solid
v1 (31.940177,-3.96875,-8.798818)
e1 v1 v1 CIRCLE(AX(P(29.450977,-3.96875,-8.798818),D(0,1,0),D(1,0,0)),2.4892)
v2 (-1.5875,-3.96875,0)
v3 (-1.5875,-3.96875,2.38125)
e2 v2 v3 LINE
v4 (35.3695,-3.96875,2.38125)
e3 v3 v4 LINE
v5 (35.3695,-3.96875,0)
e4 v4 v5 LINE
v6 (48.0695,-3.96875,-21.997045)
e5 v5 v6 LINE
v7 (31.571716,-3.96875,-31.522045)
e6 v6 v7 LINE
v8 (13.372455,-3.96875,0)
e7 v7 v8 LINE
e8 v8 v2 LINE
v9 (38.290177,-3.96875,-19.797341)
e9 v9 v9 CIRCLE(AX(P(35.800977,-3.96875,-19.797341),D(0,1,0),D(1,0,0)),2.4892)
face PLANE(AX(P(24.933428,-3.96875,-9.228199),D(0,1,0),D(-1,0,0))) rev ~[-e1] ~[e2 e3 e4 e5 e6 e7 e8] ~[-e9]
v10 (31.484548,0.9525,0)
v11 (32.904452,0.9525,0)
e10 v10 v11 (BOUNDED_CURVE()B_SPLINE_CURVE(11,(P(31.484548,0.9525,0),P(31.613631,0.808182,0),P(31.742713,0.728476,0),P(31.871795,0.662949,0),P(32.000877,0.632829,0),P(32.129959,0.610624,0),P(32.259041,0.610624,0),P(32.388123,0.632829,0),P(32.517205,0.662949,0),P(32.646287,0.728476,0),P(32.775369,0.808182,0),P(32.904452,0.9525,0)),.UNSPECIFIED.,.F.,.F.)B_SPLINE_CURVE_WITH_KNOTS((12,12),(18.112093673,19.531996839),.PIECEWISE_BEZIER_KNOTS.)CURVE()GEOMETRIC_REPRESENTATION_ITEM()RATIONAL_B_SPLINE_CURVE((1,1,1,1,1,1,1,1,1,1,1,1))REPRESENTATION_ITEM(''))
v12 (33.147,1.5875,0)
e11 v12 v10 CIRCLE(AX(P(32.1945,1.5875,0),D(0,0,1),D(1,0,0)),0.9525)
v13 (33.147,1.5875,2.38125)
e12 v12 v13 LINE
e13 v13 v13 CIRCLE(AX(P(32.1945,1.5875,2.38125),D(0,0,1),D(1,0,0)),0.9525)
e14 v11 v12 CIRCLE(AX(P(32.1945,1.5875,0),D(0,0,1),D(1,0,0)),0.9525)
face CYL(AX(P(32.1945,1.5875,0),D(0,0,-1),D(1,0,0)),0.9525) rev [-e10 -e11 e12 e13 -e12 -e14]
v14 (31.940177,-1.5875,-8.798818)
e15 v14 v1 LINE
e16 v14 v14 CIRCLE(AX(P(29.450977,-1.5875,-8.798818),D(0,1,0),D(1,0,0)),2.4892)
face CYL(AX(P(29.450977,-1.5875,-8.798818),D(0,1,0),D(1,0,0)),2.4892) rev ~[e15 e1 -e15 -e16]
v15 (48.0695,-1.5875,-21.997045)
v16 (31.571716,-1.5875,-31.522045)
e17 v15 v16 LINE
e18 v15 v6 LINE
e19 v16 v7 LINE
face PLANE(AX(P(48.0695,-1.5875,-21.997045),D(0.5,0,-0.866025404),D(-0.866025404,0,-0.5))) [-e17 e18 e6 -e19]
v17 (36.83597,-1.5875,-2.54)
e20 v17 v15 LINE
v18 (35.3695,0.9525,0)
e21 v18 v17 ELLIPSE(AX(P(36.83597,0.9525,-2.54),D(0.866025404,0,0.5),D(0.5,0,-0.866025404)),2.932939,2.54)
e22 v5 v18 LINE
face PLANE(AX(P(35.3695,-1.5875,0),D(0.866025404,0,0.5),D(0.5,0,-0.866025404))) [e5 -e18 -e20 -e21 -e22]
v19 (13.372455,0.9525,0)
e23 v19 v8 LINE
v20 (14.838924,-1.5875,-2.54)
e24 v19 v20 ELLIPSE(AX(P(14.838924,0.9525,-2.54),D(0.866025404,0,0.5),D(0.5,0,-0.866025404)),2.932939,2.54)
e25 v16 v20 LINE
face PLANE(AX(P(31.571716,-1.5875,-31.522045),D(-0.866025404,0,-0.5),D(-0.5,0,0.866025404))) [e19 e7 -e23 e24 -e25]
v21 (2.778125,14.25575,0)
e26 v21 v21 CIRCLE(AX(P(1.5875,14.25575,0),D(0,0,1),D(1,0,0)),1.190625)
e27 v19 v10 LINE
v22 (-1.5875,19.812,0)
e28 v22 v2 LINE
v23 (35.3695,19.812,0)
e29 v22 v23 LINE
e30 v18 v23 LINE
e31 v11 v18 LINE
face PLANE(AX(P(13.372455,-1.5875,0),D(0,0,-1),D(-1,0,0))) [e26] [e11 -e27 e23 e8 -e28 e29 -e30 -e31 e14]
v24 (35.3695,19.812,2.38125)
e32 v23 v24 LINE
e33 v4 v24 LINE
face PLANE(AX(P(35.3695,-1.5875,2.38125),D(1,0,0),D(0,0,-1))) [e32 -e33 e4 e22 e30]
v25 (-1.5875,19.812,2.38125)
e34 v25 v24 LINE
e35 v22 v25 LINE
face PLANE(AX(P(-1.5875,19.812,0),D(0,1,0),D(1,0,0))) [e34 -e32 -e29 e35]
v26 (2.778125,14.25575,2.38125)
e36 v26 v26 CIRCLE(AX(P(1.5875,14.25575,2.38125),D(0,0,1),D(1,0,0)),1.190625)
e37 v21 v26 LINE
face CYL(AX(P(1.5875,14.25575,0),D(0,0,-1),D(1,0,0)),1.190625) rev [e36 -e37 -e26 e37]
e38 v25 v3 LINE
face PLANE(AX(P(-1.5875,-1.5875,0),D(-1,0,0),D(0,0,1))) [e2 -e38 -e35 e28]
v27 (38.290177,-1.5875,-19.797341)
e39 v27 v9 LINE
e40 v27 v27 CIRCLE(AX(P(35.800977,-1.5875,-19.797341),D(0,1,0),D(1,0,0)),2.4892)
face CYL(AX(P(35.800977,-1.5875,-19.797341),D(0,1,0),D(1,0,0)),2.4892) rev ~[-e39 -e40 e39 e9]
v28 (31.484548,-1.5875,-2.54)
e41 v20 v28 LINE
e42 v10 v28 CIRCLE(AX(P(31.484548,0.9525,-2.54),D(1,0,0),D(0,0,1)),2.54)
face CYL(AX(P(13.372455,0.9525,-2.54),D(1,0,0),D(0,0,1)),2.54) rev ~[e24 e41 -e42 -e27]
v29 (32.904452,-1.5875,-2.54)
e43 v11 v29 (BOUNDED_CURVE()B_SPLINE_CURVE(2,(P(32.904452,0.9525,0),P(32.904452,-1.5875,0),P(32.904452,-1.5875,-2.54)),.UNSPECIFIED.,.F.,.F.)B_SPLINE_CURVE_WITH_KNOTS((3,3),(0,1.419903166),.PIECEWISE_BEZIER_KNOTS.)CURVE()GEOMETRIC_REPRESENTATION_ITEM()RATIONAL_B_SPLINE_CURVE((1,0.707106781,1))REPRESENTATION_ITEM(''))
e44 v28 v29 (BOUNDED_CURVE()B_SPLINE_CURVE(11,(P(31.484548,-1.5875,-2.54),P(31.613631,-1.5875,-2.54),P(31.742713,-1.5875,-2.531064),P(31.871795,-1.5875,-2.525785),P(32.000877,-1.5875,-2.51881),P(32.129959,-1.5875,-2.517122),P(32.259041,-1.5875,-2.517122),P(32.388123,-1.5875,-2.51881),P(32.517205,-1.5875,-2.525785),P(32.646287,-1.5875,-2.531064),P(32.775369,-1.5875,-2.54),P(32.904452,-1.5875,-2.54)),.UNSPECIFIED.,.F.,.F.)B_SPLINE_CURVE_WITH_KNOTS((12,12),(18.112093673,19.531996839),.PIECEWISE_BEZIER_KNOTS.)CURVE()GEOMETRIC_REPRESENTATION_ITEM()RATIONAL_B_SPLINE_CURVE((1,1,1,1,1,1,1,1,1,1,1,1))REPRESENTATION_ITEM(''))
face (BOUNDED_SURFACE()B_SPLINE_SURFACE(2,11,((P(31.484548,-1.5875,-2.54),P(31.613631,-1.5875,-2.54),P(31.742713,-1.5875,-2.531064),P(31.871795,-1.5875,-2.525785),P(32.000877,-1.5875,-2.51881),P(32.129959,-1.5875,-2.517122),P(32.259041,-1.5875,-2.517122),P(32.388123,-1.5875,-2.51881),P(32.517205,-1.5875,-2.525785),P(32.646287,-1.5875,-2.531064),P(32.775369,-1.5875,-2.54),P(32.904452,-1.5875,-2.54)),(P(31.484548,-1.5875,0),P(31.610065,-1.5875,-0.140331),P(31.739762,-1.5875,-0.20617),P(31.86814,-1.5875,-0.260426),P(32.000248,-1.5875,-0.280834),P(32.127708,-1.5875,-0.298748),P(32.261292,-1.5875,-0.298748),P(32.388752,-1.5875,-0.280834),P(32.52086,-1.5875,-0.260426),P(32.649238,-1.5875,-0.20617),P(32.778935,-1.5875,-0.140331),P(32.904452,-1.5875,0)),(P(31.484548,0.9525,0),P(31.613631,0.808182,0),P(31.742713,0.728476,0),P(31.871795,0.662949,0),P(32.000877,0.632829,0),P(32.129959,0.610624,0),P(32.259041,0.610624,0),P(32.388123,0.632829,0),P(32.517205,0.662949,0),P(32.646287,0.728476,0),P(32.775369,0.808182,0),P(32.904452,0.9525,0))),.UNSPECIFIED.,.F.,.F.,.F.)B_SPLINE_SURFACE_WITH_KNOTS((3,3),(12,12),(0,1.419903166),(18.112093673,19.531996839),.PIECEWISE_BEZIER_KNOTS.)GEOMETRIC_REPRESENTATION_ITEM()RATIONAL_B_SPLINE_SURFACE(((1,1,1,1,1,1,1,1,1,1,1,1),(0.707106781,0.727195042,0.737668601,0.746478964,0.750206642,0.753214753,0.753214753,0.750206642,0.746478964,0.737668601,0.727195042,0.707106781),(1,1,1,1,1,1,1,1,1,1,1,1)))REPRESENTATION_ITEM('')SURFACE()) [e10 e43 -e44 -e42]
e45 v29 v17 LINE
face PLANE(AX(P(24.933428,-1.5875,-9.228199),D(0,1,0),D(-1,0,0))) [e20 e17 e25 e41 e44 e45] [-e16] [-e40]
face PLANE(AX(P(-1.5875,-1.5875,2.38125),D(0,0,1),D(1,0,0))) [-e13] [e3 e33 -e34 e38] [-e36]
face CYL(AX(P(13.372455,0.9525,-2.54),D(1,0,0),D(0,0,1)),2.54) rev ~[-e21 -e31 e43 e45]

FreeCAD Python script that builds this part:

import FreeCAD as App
import Part
import Sketcher

V = App.Vector
Q = App.Units.Quantity


def edges_at(feature, points):
    """Names of the edges that pass closest to the given points."""
    edges = feature.Shape.Edges
    near = lambda p: min(range(len(edges)), key=lambda i: edges[i].distToShape(Part.Vertex(*p))[0])
    return sorted({f"Edge{near(p) + 1}" for p in points})

doc = App.newDocument("Part")
body = doc.addObject("PartDesign::Body", "Body")

# Sketch on XY plane
sketch1 = doc.addObject("Sketcher::SketchObject", "Sketch")
body.addObject(sketch1)
sketch1.AttachmentSupport = (doc.XY_Plane, [""])
sketch1.MapMode = "FlatFace"
sketch1.addGeometry([
    Part.LineSegment(V(-1.6, 19.8, 0), V(-1.6, -1.6, 0)),  # 0
    Part.LineSegment(V(-1.6, -1.6, 0), V(35.4, -1.6, 0)),  # 1
    Part.LineSegment(V(35.4, -1.6, 0), V(35.4, 19.8, 0)),  # 2
    Part.LineSegment(V(35.4, 19.8, 0), V(-1.6, 19.8, 0)),  # 3
    Part.Circle(V(32.2, 1.6, 0), V(0, 0, 1), 1),  # 4
    Part.Circle(V(1.6, 14.3, 0), V(0, 0, 1), 1.2),  # 5
], False)
sketch1.addConstraint([
    Sketcher.Constraint("Coincident", 0, 2, 1, 1),
    Sketcher.Constraint("Coincident", 1, 2, 2, 1),
    Sketcher.Constraint("Coincident", 2, 2, 3, 1),
    Sketcher.Constraint("Coincident", 3, 2, 0, 1),
    Sketcher.Constraint("Vertical", 0),
    Sketcher.Constraint("Horizontal", 1),
    Sketcher.Constraint("Vertical", 2),
    Sketcher.Constraint("Horizontal", 3),
    Sketcher.Constraint("Diameter", 4, Q("0.075 in")),
    Sketcher.Constraint("Diameter", 5, Q("0.09375 in")),
    Sketcher.Constraint("DistanceX", 1, 1, 1, 2, Q("1.455 in")),
    Sketcher.Constraint("DistanceY", -1, 1, 2, 2, Q("0.78 in")),
    Sketcher.Constraint("DistanceX", 0, 2, 4, 3, Q("1.33 in")),
    Sketcher.Constraint("DistanceX", 5, 3, 1, 2, Q("1.33 in")),
    Sketcher.Constraint("DistanceY", 0, 2, 0, 1, Q("0.8425 in")),
    Sketcher.Constraint("DistanceY", -1, 1, 4, 3, Q("0.0625 in")),
    Sketcher.Constraint("DistanceX", -1, 1, 5, 3, Q("0.0625 in")),
    Sketcher.Constraint("DistanceY", 5, 3, 2, 2, Q("0.21875 in")),
])
pad1 = doc.addObject("PartDesign::Pad", "Pad")
body.addObject(pad1)
pad1.Profile = sketch1
pad1.Length = Q("0.09375 in")

# Sketch on XZ plane
sketch2 = doc.addObject("Sketcher::SketchObject", "Sketch001")
body.addObject(sketch2)
sketch2.AttachmentSupport = (doc.XZ_Plane, [""])
sketch2.MapMode = "FlatFace"
sketch2.AttachmentOffset = App.Placement(V(0, 0, 0.0625 * 25.4), App.Rotation())
sketch2.addGeometry([
    Part.LineSegment(V(35.4, 2.4, 0), V(-1.6, 2.4, 0)),  # 0
    Part.LineSegment(V(-1.6, 2.4, 0), V(-1.6, 0, 0)),  # 1
    Part.LineSegment(V(-1.6, 0, 0), V(13.4, 0, 0)),  # 2
    Part.LineSegment(V(13.4, 0, 0), V(31.6, -31.5, 0)),  # 3
    Part.LineSegment(V(31.6, -31.5, 0), V(48.1, -22, 0)),  # 4
    Part.LineSegment(V(48.1, -22, 0), V(35.4, 0, 0)),  # 5
    Part.LineSegment(V(35.4, 0, 0), V(35.4, 2.4, 0)),  # 6
], False)
sketch2.addConstraint([
    Sketcher.Constraint("Coincident", 0, 2, 1, 1),
    Sketcher.Constraint("Coincident", 1, 2, 2, 1),
    Sketcher.Constraint("Coincident", 2, 2, 3, 1),
    Sketcher.Constraint("Coincident", 3, 2, 4, 1),
    Sketcher.Constraint("Coincident", 4, 2, 5, 1),
    Sketcher.Constraint("Coincident", 5, 2, 6, 1),
    Sketcher.Constraint("Coincident", 6, 2, 0, 1),
    Sketcher.Constraint("Horizontal", 0),
    Sketcher.Constraint("Vertical", 1),
    Sketcher.Constraint("Horizontal", 2),
    Sketcher.Constraint("Vertical", 6),
    Sketcher.Constraint("PointOnObject", 1, 2, -1),
    Sketcher.Constraint("PointOnObject", 5, 2, -1),
    Sketcher.Constraint("Perpendicular", 3, 4),
    Sketcher.Constraint("Perpendicular", 4, 5),
    Sketcher.Constraint("Distance", 5, Q("1 in")),
    Sketcher.Constraint("Angle", 3, Q("-60 deg")),
    Sketcher.Constraint("Distance", 4, Q("0.75 in")),
    Sketcher.Constraint("DistanceX", 0, 2, 0, 1, Q("1.455 in")),
    Sketcher.Constraint("DistanceY", 1, 2, 1, 1, Q("0.09375 in")),
    Sketcher.Constraint("DistanceX", 0, 2, -1, 1, Q("0.0625 in")),
])
pad2 = doc.addObject("PartDesign::Pad", "Pad001")
body.addObject(pad2)
pad2.Profile = sketch2
pad2.Length = Q("0.09375 in")

# Sketch on XZ plane
sketch3 = doc.addObject("Sketcher::SketchObject", "Sketch002")
body.addObject(sketch3)
sketch3.AttachmentSupport = (doc.XZ_Plane, [""])
sketch3.MapMode = "FlatFace"
sketch3.AttachmentOffset = App.Placement(V(0, 0, 0.0625 * 25.4), App.Rotation())
sketch3.addGeometry(Part.Circle(V(35.8, -19.8, 0), V(0, 0, 1), 2.5), False)
sketch3.addConstraint([
    Sketcher.Constraint("Diameter", 0, Q("0.196 in")),
    Sketcher.Constraint("DistanceY", 0, 3, -1, 1, 19.797341),
    Sketcher.Constraint("DistanceX", -1, 1, 0, 3, 35.800977),
])
pocket1 = doc.addObject("PartDesign::Pocket", "Pocket")
body.addObject(pocket1)
pocket1.Profile = sketch3
pocket1.Type = "UpToFirst"
pocket1.Reversed = True

# Sketch on XZ plane
sketch4 = doc.addObject("Sketcher::SketchObject", "Sketch003")
body.addObject(sketch4)
sketch4.AttachmentSupport = (doc.XZ_Plane, [""])
sketch4.MapMode = "FlatFace"
sketch4.AttachmentOffset = App.Placement(V(0, 0, 0.0625 * 25.4), App.Rotation())
sketch4.addGeometry(Part.Circle(V(29.5, -8.8, 0), V(0, 0, 1), 2.5), False)
sketch4.addConstraint([
    Sketcher.Constraint("Diameter", 0, Q("0.196 in")),
    Sketcher.Constraint("DistanceY", 0, 3, -1, 1, 8.798818),
    Sketcher.Constraint("DistanceX", -1, 1, 0, 3, 29.450977),
])
pocket2 = doc.addObject("PartDesign::Pocket", "Pocket001")
body.addObject(pocket2)
pocket2.Profile = sketch4
pocket2.Type = "UpToFirst"
pocket2.Reversed = True
doc.recompute()

fillet = doc.addObject("PartDesign::Fillet", "Fillet")
body.addObject(fillet)
fillet.Base = (pocket2, edges_at(pocket2, [(24.371, -1.587, 0)]))
fillet.Radius = Q("0.1 in")

doc.recompute()
